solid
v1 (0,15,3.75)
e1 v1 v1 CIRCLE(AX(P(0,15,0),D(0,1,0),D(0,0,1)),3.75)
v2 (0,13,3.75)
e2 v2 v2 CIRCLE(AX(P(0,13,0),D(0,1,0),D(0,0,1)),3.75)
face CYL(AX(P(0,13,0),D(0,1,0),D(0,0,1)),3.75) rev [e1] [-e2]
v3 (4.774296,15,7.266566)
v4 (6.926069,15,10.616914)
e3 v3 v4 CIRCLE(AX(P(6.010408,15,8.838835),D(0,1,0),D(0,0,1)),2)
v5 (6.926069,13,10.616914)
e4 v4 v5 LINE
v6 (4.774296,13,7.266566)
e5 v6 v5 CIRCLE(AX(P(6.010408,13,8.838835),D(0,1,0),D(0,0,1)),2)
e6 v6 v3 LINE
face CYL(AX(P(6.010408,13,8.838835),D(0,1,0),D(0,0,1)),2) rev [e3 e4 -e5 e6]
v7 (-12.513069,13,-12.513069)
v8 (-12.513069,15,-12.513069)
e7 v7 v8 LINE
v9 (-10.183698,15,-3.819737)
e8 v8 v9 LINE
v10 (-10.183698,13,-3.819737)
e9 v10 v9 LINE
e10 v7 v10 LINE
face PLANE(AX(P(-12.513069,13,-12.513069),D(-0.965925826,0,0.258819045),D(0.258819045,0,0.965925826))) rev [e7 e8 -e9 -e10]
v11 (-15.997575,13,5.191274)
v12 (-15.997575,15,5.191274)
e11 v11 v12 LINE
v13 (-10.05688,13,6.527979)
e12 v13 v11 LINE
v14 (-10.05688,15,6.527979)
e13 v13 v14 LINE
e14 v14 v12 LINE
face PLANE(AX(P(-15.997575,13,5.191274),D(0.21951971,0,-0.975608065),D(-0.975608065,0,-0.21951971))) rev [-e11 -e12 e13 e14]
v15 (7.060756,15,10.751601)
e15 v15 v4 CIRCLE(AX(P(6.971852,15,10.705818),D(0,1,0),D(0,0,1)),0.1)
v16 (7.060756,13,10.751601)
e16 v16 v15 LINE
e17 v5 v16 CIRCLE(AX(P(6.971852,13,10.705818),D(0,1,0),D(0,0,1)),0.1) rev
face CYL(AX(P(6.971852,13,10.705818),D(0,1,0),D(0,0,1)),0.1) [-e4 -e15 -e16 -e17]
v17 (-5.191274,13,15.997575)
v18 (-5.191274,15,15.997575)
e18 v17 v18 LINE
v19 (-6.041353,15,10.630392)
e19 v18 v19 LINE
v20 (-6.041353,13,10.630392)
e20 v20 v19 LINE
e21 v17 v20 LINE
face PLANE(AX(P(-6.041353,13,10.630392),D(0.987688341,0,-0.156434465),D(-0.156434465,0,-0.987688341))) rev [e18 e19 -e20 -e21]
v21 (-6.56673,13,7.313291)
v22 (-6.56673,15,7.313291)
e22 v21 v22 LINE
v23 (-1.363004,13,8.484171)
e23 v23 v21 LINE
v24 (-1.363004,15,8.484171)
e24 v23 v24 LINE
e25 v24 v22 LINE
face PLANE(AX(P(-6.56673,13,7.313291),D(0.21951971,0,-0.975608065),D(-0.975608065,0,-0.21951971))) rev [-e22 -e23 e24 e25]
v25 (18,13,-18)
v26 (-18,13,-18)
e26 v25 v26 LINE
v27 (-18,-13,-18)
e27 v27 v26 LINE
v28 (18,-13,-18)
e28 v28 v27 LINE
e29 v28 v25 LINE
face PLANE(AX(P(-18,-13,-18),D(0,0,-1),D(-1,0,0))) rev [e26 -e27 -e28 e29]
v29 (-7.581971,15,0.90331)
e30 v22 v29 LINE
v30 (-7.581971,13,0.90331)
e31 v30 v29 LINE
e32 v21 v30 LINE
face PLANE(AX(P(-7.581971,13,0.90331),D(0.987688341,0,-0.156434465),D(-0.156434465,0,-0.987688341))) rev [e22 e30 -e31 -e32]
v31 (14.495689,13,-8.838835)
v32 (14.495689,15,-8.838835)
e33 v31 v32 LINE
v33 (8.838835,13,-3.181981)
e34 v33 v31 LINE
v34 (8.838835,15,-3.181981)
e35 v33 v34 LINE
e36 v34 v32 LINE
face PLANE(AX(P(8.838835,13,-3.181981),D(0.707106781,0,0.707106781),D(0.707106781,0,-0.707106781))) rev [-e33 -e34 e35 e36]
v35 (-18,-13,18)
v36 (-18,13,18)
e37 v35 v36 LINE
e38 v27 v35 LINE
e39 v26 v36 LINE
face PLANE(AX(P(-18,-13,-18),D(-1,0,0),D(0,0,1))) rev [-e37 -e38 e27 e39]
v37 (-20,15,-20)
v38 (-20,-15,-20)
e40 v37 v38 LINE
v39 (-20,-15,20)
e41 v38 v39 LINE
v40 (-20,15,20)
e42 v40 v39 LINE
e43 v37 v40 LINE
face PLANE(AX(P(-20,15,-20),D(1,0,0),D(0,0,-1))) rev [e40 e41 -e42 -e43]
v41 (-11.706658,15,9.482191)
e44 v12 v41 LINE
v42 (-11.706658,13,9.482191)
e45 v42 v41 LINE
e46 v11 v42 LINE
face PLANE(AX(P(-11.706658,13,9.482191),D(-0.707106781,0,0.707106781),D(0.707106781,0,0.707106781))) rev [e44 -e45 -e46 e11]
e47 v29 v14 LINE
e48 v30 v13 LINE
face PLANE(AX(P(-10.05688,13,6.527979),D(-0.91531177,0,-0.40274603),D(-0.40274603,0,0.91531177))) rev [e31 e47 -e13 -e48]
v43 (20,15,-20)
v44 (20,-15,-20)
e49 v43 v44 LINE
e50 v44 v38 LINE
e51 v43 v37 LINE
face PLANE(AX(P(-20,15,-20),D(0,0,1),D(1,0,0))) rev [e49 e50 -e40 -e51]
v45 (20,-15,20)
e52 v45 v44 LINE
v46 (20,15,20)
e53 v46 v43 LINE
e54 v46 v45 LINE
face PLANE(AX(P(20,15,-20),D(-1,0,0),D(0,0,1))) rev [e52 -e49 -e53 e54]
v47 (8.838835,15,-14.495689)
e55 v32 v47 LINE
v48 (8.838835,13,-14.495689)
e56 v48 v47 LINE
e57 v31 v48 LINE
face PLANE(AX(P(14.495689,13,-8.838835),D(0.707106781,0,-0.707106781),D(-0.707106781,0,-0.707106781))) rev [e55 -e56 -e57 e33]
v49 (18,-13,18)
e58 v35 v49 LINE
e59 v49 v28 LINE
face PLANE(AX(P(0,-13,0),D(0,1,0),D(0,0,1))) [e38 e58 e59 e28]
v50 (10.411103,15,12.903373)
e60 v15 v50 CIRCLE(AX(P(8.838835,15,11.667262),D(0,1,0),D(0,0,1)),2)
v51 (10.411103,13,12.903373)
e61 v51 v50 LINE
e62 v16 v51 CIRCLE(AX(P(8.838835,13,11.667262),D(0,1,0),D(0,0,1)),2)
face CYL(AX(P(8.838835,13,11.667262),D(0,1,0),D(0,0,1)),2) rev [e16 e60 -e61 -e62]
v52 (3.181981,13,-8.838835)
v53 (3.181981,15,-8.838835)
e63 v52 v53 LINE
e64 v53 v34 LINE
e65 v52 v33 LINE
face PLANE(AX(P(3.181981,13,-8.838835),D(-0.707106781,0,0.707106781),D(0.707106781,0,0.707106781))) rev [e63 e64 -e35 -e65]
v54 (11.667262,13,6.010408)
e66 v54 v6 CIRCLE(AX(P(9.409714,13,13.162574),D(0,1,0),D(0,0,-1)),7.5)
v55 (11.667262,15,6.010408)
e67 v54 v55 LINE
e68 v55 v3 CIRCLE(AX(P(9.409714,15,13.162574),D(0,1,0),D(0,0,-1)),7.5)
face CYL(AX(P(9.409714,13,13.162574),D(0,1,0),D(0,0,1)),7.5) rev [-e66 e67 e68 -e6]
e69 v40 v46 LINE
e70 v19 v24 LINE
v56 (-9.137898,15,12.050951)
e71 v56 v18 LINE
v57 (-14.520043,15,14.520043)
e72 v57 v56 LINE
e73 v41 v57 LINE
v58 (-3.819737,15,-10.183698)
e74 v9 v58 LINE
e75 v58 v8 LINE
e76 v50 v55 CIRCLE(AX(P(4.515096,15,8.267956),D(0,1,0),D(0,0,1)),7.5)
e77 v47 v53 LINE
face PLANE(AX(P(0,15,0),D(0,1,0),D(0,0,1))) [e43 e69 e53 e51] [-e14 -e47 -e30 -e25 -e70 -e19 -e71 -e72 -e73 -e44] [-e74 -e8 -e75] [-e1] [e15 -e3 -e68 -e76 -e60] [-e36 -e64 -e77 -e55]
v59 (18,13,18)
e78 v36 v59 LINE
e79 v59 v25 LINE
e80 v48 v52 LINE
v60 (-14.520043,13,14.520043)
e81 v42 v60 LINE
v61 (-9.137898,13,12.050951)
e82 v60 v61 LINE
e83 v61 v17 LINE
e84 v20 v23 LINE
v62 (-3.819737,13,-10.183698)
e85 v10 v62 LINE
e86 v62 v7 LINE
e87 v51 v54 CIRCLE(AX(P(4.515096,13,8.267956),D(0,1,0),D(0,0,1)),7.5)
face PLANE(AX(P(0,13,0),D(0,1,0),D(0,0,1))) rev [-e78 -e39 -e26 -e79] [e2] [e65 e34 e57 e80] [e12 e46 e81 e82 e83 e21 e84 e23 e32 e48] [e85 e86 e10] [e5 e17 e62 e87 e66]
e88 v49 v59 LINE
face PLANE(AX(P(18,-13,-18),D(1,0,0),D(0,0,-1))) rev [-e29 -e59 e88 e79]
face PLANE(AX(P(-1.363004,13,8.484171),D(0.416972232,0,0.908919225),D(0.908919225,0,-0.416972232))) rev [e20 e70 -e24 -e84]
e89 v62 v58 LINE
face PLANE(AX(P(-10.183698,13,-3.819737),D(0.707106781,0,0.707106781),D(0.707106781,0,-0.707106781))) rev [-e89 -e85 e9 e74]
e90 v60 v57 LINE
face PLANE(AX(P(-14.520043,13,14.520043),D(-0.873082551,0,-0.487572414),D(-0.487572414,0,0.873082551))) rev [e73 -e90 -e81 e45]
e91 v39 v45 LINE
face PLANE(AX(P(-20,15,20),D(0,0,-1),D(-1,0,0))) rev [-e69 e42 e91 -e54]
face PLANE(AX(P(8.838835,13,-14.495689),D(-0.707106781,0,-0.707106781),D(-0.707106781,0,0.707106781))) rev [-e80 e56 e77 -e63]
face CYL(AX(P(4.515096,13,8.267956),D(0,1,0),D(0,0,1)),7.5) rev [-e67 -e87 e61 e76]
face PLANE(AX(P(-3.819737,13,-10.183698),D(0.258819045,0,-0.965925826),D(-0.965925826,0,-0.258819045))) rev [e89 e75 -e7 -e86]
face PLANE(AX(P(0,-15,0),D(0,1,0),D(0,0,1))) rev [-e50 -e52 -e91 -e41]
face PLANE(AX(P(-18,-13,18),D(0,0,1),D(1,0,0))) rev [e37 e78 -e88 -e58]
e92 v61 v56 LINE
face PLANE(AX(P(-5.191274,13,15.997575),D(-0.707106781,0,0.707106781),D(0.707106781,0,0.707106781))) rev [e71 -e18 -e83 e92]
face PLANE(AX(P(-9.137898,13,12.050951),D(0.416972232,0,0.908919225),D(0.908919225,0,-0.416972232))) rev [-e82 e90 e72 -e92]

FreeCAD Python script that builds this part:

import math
import FreeCAD as App
import Part
import Sketcher

V = App.Vector
Q = App.Units.Quantity


def edges_at(feature, points):
    """Names of the edges that pass closest to the given points."""
    edges = feature.Shape.Edges
    near = lambda p: min(range(len(edges)), key=lambda i: edges[i].distToShape(Part.Vertex(*p))[0])
    return sorted({f"Edge{near(p) + 1}" for p in points})

doc = App.newDocument("Part")
body = doc.addObject("PartDesign::Body", "Body")

sketch1 = doc.addObject("Sketcher::SketchObject", "Sketch")
body.addObject(sketch1)
sketch1.AttachmentSupport = (doc.XZ_Plane, [""])
sketch1.MapMode = "FlatFace"
sketch1.addGeometry([
    Part.LineSegment(V(-20, -20, 0), V(-20, 20, 0)),
    Part.LineSegment(V(-20, 20, 0), V(20, 20, 0)),
    Part.LineSegment(V(20, 20, 0), V(20, -20, 0)),
    Part.LineSegment(V(20, -20, 0), V(-20, -20, 0)),
], False)
sketch1.addConstraint([
    Sketcher.Constraint("Coincident", 0, 2, 1, 1),
    Sketcher.Constraint("Coincident", 1, 2, 2, 1),
    Sketcher.Constraint("Coincident", 2, 2, 3, 1),
    Sketcher.Constraint("Coincident", 3, 2, 0, 1),
    Sketcher.Constraint("Vertical", 0),
    Sketcher.Constraint("Horizontal", 1),
    Sketcher.Constraint("Vertical", 2),
    Sketcher.Constraint("Horizontal", 3),
    Sketcher.Constraint("Symmetric", 0, 2, 2, 2, -1, 1),
    Sketcher.Constraint("Equal", 3, 0),
    Sketcher.Constraint("DistanceX", 1, 1, 1, 2, 40.0),
])
pad1 = doc.addObject("PartDesign::Pad", "Pad")
body.addObject(pad1)
pad1.Profile = sketch1
pad1.Length = 30
pad1.Midplane = True

sketch2 = doc.addObject("Sketcher::SketchObject", "Sketch001")
body.addObject(sketch2)
sketch2.AttachmentSupport = (doc.XZ_Plane, [""])
sketch2.MapMode = "FlatFace"
sketch2.AttachmentOffset = App.Placement(V(0, 0, -13), App.Rotation())
sketch2.addGeometry([
    Part.LineSegment(V(-18, -18, 0), V(-18, 18, 0)),
    Part.LineSegment(V(-18, 18, 0), V(18, 18, 0)),
    Part.LineSegment(V(18, 18, 0), V(18, -18, 0)),
    Part.LineSegment(V(18, -18, 0), V(-18, -18, 0)),
], False)
sketch2.addConstraint([
    Sketcher.Constraint("Coincident", 0, 2, 1, 1),
    Sketcher.Constraint("Coincident", 1, 2, 2, 1),
    Sketcher.Constraint("Coincident", 2, 2, 3, 1),
    Sketcher.Constraint("Coincident", 3, 2, 0, 1),
    Sketcher.Constraint("Vertical", 0),
    Sketcher.Constraint("Horizontal", 1),
    Sketcher.Constraint("Vertical", 2),
    Sketcher.Constraint("Horizontal", 3),
    Sketcher.Constraint("Symmetric", 0, 2, 2, 2, -1, 1),
    Sketcher.Constraint("Equal", 3, 0),
    Sketcher.Constraint("DistanceX", 1, 1, 1, 2, 36.0),
])
pocket1 = doc.addObject("PartDesign::Pocket", "Pocket")
body.addObject(pocket1)
pocket1.Profile = sketch2
pocket1.Length = 26
pocket1.Reversed = True

sketch3 = doc.addObject("Sketcher::SketchObject", "Sketch002")
body.addObject(sketch3)
sketch3.AttachmentSupport = (doc.XZ_Plane, [""])
sketch3.MapMode = "FlatFace"
sketch3.AttachmentOffset = App.Placement(V(0, 0, -15), App.Rotation())
sketch3.addGeometry([
    Part.Circle(V(0, 0, 0), V(0, 0, 1), 3.75),
    Part.LineSegment(V(-10.05688, 6.527979, 0), V(-15.997575, 5.191274, 0)),
    Part.LineSegment(V(-15.997575, 5.191274, 0), V(-11.706658, 9.482191, 0)),
    Part.LineSegment(V(-11.706658, 9.482191, 0), V(-14.520043, 14.520043, 0)),
    Part.LineSegment(V(-14.520043, 14.520043, 0), V(-9.137898, 12.050951, 0)),
    Part.LineSegment(V(-9.137898, 12.050951, 0), V(-5.191274, 15.997575, 0)),
    Part.LineSegment(V(-5.191274, 15.997575, 0), V(-6.041353, 10.630392, 0)),
    Part.LineSegment(V(-6.041353, 10.630392, 0), V(-1.363004, 8.484171, 0)),
    Part.LineSegment(V(-1.363004, 8.484171, 0), V(-6.56673, 7.313291, 0)),
    Part.LineSegment(V(-6.56673, 7.313291, 0), V(-7.581971, 0.90331, 0)),
    Part.LineSegment(V(-7.581971, 0.90331, 0), V(-10.05688, 6.527979, 0)),
    Part.LineSegment(V(14.495689, -8.838835, 0), V(8.838835, -14.495689, 0)),
    Part.LineSegment(V(8.838835, -14.495689, 0), V(3.181981, -8.838835, 0)),
    Part.LineSegment(V(3.181981, -8.838835, 0), V(8.838835, -3.181981, 0)),
    Part.LineSegment(V(8.838835, -3.181981, 0), V(14.495689, -8.838835, 0)),
    Part.LineSegment(V(-12.513069, -12.513069, 0), V(-10.183698, -3.819737, 0)),
    Part.LineSegment(V(-10.183698, -3.819737, 0), V(-3.819737, -10.183698, 0)),
    Part.LineSegment(V(-3.819737, -10.183698, 0), V(-12.513069, -12.513069, 0)),
    Part.ArcOfCircle(Part.Circle(V(4.515096, 8.267956, 0), V(0, 0, 1), 7.5), math.radians(-17.51806), math.radians(38.174289)),
    Part.ArcOfCircle(Part.Circle(V(9.409714, 13.162574, 0), V(0, 0, 1), 7.5), math.radians(-128.174289), math.radians(-72.48194)),
    Part.ArcOfCircle(Part.Circle(V(6.010408, 8.838835, 0), V(0, 0, 1), 2), math.radians(45), math.radians(231.825711)),
    Part.ArcOfCircle(Part.Circle(V(8.838835, 11.667262, 0), V(0, 0, 1), 2), math.radians(38.174289), math.radians(225)),
], False)
sketch3.addConstraint([
    Sketcher.Constraint("Coincident", 1, 2, 2, 1),
    Sketcher.Constraint("Coincident", 2, 2, 3, 1),
    Sketcher.Constraint("Coincident", 3, 2, 4, 1),
    Sketcher.Constraint("Coincident", 4, 2, 5, 1),
    Sketcher.Constraint("Coincident", 5, 2, 6, 1),
    Sketcher.Constraint("Coincident", 6, 2, 7, 1),
    Sketcher.Constraint("Coincident", 7, 2, 8, 1),
    Sketcher.Constraint("Coincident", 8, 2, 9, 1),
    Sketcher.Constraint("Coincident", 9, 2, 10, 1),
    Sketcher.Constraint("Coincident", 10, 2, 1, 1),
    Sketcher.Constraint("Coincident", 11, 2, 12, 1),
    Sketcher.Constraint("Coincident", 12, 2, 13, 1),
    Sketcher.Constraint("Coincident", 13, 2, 14, 1),
    Sketcher.Constraint("Coincident", 14, 2, 11, 1),
    Sketcher.Constraint("Coincident", 15, 2, 16, 1),
    Sketcher.Constraint("Coincident", 16, 2, 17, 1),
    Sketcher.Constraint("Coincident", 17, 2, 15, 1),
    Sketcher.Constraint("Coincident", 18, 1, 19, 2),
    Sketcher.Constraint("Tangent", 19, 1, 20, 2),
    Sketcher.Constraint("Tangent", 20, 1, 21, 2),
    Sketcher.Constraint("Tangent", 21, 1, 18, 2),
    Sketcher.Constraint("Coincident", 0, 3, -1, 1),
    Sketcher.Constraint("Equal", 18, 19),
    Sketcher.Constraint("Equal", 20, 21),
    Sketcher.Constraint("Parallel", 2, 5),
    Sketcher.Constraint("Parallel", 4, 7),
    Sketcher.Constraint("Parallel", 1, 8),
    Sketcher.Constraint("Parallel", 6, 9),
    Sketcher.Constraint("Parallel", 5, 11),
    Sketcher.Constraint("Perpendicular", 11, 12),
    Sketcher.Constraint("Perpendicular", 12, 13),
    Sketcher.Constraint("Perpendicular", 13, 14),
    Sketcher.Constraint("Parallel", 14, 16),
    Sketcher.Constraint("Horizontal", 12, 2, 14, 2),
    Sketcher.Constraint("Vertical", 21, 3, 11, 2),
    Sketcher.Constraint("Vertical", 11, 2, 13, 2),
    Sketcher.Constraint("Equal", 15, 16),
    Sketcher.Constraint("Equal", 16, 17),
    Sketcher.Constraint("Radius", 20, 2.0),
    Sketcher.Constraint("Diameter", 0, 7.5),
    Sketcher.Constraint("Radius", 18, 7.5),
    Sketcher.Constraint("Angle", 6, Q("-99 deg")),
    Sketcher.Constraint("Distance", 11, 8.0),
    Sketcher.Constraint("Distance", 15, 9.0),
    Sketcher.Constraint("DistanceY", 11, 2, 9, 2, 15.398999),
    Sketcher.Constraint("DistanceX", 4, 2, -1, 1, 9.137898),
    Sketcher.Constraint("DistanceY", 1, 2, 19, 3, 7.971299),
    Sketcher.Constraint("DistanceY", 2, 2, 6, 2, 1.148201),
    Sketcher.Constraint("DistanceX", 7, 2, 18, 3, 5.8781),
    Sketcher.Constraint("DistanceY", 8, 2, 6, 2, 3.317101),
    Sketcher.Constraint("DistanceX", 17, 2, 9, 2, 4.931098),
    Sketcher.Constraint("DistanceX", 18, 3, 19, 1, 0.2592),
    Sketcher.Constraint("DistanceY", 21, 1, 19, 3, 0.2592),
    Sketcher.Constraint("Distance", 3, 5.770189),
    Sketcher.Constraint("Distance", 5, 5.581369),
    Sketcher.Constraint("Distance", 8, 5.333828),
    Sketcher.Constraint("Distance", 9, 6.489882),
    Sketcher.Constraint("DistanceY", -1, 1, 21, 3, 11.667262),
    Sketcher.Constraint("DistanceY", -1, 1, 2, 2, 9.482191),
    Sketcher.Constraint("DistanceY", -1, 1, 4, 2, 12.050951),
    Sketcher.Constraint("DistanceY", -1, 1, 7, 2, 8.484171),
    Sketcher.Constraint("DistanceX", 8, 2, -1, 1, 6.56673),
    Sketcher.Constraint("DistanceX", 10, 2, -1, 1, 10.05688),
    Sketcher.Constraint("DistanceY", -1, 1, 10, 2, 6.527979),
    Sketcher.Constraint("DistanceX", -1, 1, 12, 2, 3.181981),
    Sketcher.Constraint("DistanceY", 17, 2, -1, 1, 12.513069),
])
pocket2 = doc.addObject("PartDesign::Pocket", "Pocket001")
body.addObject(pocket2)
pocket2.Profile = sketch3
pocket2.Length = 2
pocket2.Reversed = True
doc.recompute()

fillet = doc.addObject("PartDesign::Fillet", "Fillet")
body.addObject(fillet)
fillet.Base = (pocket2, edges_at(pocket2, [(7.425, 14, 10.253)]))
fillet.Radius = 0.1

doc.recompute()
